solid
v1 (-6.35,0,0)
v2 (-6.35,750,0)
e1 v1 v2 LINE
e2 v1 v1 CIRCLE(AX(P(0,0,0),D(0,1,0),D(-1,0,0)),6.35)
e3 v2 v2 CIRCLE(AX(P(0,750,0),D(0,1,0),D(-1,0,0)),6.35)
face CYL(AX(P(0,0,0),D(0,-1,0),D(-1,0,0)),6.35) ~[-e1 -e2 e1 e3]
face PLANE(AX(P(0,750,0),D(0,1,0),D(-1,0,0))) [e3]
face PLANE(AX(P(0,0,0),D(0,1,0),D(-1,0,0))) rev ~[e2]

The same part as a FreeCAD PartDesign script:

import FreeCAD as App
import Part
import Sketcher
from FreeCAD import Vector

doc = App.newDocument("Part")
body = doc.addObject("PartDesign::Body", "Body")

# Sketch on XZ plane
sketch1 = doc.addObject("Sketcher::SketchObject", "Sketch")
body.addObject(sketch1)
sketch1.AttachmentSupport = (doc.XZ_Plane, [""])
sketch1.MapMode = "FlatFace"
sketch1.addGeometry(Part.Circle(Vector(0, 0, 0), Vector(0, 0, 1), 6), False)
sketch1.addConstraint([
    Sketcher.Constraint("Coincident", 0, 3, -1, 1),
    Sketcher.Constraint("Diameter", 0, 12.7),
])
pad1 = doc.addObject("PartDesign::Pad", "Pad")
body.addObject(pad1)
pad1.Profile = sketch1
pad1.Length = 750
pad1.Reversed = True

doc.recompute()
